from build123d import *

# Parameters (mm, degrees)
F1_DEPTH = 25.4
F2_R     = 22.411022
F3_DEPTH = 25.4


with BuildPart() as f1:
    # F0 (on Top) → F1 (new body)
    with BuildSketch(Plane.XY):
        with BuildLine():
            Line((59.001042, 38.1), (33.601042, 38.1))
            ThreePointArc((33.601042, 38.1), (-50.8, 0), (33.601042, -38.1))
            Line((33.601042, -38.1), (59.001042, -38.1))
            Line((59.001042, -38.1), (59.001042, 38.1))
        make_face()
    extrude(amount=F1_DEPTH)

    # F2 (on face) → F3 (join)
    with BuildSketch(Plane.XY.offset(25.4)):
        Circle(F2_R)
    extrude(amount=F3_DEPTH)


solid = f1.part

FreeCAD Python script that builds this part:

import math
import FreeCAD as App
import Part
import Sketcher
Q = App.Units.Quantity

doc = App.newDocument("Part")
body = doc.addObject("PartDesign::Body", "Body")

# Sketch on XY plane
sketch1 = body.newObject("Sketcher::SketchObject", "Sketch")
sketch1.AttachmentSupport = (doc.getObject("XY_Plane"), [""])
sketch1.MapMode = "FlatFace"
sketch1.addGeometry([
    Part.LineSegment(App.Vector(59.001042, 38.1, 0), App.Vector(33.601042, 38.1, 0)),
    Part.ArcOfCircle(Part.Circle(App.Vector(0, 0, 0), App.Vector(0, 0, 1), 50.8), math.radians(48.590378), math.radians(311.409622)),
    Part.LineSegment(App.Vector(33.601042, -38.1, 0), App.Vector(59.001042, -38.1, 0)),
    Part.LineSegment(App.Vector(59.001042, -38.1, 0), App.Vector(59.001042, 38.1, 0)),
], False)
sketch1.addConstraint([
    Sketcher.Constraint("Coincident", 0, 2, 1, 1),
    Sketcher.Constraint("Coincident", 1, 2, 2, 1),
    Sketcher.Constraint("Coincident", 2, 2, 3, 1),
    Sketcher.Constraint("Coincident", 3, 2, 0, 1),
    Sketcher.Constraint("Horizontal", 0),
    Sketcher.Constraint("Horizontal", 2),
    Sketcher.Constraint("Vertical", 3),
    Sketcher.Constraint("Coincident", 1, 3, -1, 1),
    Sketcher.Constraint("Vertical", 0, 2, 1, 2),
    Sketcher.Constraint("Radius", 1, Q("2 in")),
    Sketcher.Constraint("DistanceX", 0, 2, 0, 1, Q("1 in")),
    Sketcher.Constraint("DistanceY", 3, 1, 3, 2, Q("3 in")),
])
pad1 = body.newObject("PartDesign::Pad", "Pad")
pad1.Profile = sketch1
pad1.Length = Q("1 in")

# Sketch on XY plane
sketch2 = body.newObject("Sketcher::SketchObject", "Sketch001")
sketch2.AttachmentSupport = (doc.getObject("XY_Plane"), [""])
sketch2.MapMode = "FlatFace"
sketch2.AttachmentOffset = App.Placement(App.Vector(0, 0, 1 * 25.4), App.Rotation())
sketch2.addGeometry(Part.Circle(App.Vector(0, 0, 0), App.Vector(0, 0, 1), 22.411022), False)
sketch2.addConstraint([
    Sketcher.Constraint("Coincident", 0, 3, -1, 1),
    Sketcher.Constraint("Diameter", 0, 44.822044),
])
pad2 = body.newObject("PartDesign::Pad", "Pad001")
pad2.Profile = sketch2
pad2.Length = Q("1 in")

doc.recompute()
